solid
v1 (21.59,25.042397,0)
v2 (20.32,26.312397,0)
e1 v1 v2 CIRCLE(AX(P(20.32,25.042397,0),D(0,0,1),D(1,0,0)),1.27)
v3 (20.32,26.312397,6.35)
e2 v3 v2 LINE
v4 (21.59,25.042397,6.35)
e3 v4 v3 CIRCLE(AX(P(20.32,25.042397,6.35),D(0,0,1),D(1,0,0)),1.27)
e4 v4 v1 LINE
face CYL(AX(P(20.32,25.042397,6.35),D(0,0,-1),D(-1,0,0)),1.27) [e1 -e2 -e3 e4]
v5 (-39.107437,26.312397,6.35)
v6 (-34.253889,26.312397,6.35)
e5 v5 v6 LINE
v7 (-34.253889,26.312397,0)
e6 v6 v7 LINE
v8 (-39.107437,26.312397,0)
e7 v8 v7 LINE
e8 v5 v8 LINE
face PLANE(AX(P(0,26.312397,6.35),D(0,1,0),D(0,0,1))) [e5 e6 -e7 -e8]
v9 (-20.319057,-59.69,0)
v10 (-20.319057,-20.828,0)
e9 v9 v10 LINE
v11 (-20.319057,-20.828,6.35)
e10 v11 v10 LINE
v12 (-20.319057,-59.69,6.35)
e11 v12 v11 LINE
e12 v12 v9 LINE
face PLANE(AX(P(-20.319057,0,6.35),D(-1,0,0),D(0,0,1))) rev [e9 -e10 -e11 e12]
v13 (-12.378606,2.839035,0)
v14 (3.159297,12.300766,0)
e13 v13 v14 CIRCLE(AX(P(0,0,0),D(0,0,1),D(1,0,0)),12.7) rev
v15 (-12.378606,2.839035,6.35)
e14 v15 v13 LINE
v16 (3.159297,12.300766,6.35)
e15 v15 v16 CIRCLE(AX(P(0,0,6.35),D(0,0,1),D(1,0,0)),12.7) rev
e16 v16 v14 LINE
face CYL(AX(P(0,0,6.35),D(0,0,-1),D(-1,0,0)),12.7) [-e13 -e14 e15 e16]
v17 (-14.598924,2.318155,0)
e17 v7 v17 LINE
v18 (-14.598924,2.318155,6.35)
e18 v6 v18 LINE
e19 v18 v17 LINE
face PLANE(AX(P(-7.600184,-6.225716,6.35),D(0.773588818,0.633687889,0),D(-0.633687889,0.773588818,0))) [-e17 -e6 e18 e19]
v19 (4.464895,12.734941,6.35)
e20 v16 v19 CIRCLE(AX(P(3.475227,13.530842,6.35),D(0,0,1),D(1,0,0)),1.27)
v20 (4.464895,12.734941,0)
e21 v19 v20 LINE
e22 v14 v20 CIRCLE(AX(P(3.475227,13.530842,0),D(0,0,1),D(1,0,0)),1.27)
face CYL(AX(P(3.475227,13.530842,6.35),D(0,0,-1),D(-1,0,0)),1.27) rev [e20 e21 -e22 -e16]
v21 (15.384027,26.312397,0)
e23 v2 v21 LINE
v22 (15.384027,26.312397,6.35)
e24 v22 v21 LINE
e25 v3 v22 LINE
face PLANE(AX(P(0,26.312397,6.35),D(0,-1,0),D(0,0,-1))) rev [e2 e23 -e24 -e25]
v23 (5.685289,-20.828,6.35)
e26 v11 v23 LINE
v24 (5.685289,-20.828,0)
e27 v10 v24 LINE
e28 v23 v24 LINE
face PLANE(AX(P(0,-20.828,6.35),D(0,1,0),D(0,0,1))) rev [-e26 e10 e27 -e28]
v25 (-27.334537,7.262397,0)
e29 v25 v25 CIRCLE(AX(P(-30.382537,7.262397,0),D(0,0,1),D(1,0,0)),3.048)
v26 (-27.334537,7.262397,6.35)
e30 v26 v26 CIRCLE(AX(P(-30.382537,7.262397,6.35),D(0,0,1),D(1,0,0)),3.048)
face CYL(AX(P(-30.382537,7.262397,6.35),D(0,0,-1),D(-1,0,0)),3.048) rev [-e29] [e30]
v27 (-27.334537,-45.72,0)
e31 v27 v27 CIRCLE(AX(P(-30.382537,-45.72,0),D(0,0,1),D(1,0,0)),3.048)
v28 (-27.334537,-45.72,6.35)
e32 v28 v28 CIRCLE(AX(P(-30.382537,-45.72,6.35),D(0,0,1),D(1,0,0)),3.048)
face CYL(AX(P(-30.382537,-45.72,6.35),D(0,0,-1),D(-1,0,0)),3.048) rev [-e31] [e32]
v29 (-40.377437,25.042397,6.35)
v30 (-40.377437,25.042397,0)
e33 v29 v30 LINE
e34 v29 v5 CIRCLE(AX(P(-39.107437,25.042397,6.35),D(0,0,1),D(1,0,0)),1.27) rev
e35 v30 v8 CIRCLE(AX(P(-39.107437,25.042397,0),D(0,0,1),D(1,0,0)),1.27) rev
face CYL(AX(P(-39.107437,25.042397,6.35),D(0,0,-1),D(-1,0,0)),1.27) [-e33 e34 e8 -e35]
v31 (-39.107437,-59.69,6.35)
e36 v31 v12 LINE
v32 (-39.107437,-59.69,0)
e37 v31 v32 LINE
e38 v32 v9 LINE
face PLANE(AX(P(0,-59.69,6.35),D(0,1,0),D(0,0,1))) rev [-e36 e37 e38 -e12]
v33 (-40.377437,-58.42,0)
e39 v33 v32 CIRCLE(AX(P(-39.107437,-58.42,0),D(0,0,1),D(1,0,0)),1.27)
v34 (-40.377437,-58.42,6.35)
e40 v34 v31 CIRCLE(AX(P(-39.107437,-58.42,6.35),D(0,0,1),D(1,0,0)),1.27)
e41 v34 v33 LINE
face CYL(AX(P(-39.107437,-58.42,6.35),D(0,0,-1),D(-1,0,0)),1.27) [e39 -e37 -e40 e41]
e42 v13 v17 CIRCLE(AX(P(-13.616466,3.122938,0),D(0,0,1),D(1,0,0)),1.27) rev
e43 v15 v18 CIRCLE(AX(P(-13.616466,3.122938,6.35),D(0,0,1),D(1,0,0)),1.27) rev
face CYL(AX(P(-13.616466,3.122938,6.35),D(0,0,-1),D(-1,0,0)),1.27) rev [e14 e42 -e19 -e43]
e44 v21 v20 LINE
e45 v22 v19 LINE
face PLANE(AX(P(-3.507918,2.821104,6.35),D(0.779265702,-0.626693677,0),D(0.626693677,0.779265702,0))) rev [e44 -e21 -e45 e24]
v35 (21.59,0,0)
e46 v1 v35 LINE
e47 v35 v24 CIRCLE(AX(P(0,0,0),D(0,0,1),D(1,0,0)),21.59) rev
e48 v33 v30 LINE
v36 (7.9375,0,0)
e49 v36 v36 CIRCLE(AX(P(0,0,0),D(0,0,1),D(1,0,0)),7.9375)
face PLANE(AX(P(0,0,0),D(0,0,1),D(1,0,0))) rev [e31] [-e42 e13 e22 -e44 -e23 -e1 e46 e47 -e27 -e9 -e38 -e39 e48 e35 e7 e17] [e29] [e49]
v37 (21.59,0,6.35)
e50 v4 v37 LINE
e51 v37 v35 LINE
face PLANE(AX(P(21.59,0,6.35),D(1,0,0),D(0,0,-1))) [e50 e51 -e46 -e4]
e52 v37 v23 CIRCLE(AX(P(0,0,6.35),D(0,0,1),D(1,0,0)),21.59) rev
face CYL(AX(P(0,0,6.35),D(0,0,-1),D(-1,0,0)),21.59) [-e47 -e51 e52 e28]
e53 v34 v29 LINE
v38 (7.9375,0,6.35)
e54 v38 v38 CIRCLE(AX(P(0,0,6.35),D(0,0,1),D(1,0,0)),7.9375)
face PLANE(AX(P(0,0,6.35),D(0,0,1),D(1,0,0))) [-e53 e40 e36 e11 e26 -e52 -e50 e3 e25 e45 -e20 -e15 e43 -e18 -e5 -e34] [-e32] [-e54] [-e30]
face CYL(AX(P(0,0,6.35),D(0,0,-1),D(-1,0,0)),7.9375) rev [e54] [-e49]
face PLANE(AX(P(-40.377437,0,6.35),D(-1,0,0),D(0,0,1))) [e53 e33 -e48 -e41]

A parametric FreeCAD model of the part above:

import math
import FreeCAD as App
import Part
import Sketcher
from FreeCAD import Vector
Q = App.Units.Quantity

doc = App.newDocument("Part")
params = doc.addObject("Spreadsheet::Sheet", "Params")
for row, (alias, value) in enumerate([
    ("sketch1_radius", "0.5 in"),
    ("sketch1_diameter", "0.24 in"),
    ("sketch1_radius2", "0.05 in"),
    ("sketch1_radius3", "0.85 in"),
    ("sketch1_diameter2", "0.625 in"),
    ("pad1_length", "0.25 in"),
], start=1):
    params.set(f"A{row}", alias)
    params.set(f"B{row}", "=" + value)
    params.setAlias(f"B{row}", alias)

body = doc.addObject("PartDesign::Body", "Body")

# Sketch on XY plane
sketch1 = body.newObject("Sketcher::SketchObject", "Sketch")
sketch1.AttachmentSupport = (doc.getObject("XY_Plane"), [""])
sketch1.MapMode = "FlatFace"
sketch1.addGeometry([
    Part.LineSegment(Vector(21.59, 0, 0), Vector(21.59, 25.042397, 0)),  # 0
    Part.ArcOfCircle(Part.Circle(Vector(20.32, 25.042397, 0), Vector(0, 0, 1), 1.27), math.radians(0), math.radians(90)),  # 1
    Part.LineSegment(Vector(20.32, 26.312397, 0), Vector(15.384027, 26.312397, 0)),  # 2
    Part.LineSegment(Vector(15.384027, 26.312397, 0), Vector(4.464895, 12.734941, 0)),  # 3
    Part.ArcOfCircle(Part.Circle(Vector(3.475227, 13.530842, 0), Vector(0, 0, 1), 1.27), math.radians(-104.404359), math.radians(-38.806607)),  # 4
    Part.ArcOfCircle(Part.Circle(Vector(0, 0, 0), Vector(0, 0, 1), 12.7), math.radians(75.595641), math.radians(167.082605)),  # 5
    Part.ArcOfCircle(Part.Circle(Vector(-13.616466, 3.122938, 0), Vector(0, 0, 1), 1.27), math.radians(-140.677264), math.radians(-12.917395)),  # 6
    Part.LineSegment(Vector(-14.598924, 2.318155, 0), Vector(-34.253889, 26.312397, 0)),  # 7
    Part.LineSegment(Vector(-34.253889, 26.312397, 0), Vector(-39.107437, 26.312397, 0)),  # 8
    Part.ArcOfCircle(Part.Circle(Vector(-39.107437, 25.042397, 0), Vector(0, 0, 1), 1.27), math.radians(90), math.radians(180)),  # 9
    Part.LineSegment(Vector(-40.377437, 25.042397, 0), Vector(-40.377437, -58.42, 0)),  # 10
    Part.ArcOfCircle(Part.Circle(Vector(-39.107437, -58.42, 0), Vector(0, 0, 1), 1.27), math.radians(180), math.radians(270)),  # 11
    Part.LineSegment(Vector(-39.107437, -59.69, 0), Vector(-20.319057, -59.69, 0)),  # 12
    Part.LineSegment(Vector(-20.319057, -59.69, 0), Vector(-20.319057, -20.828, 0)),  # 13
    Part.LineSegment(Vector(-20.319057, -20.828, 0), Vector(5.685289, -20.828, 0)),  # 14
    Part.ArcOfCircle(Part.Circle(Vector(0, 0, 0), Vector(0, 0, 1), 21.59), math.radians(-74.73227), math.radians(0)),  # 15
    Part.Circle(Vector(-30.382537, -45.72, 0), Vector(0, 0, 1), 3.048),  # 16
    Part.Circle(Vector(-30.382537, 7.262397, 0), Vector(0, 0, 1), 3.048),  # 17
    Part.Circle(Vector(0, 0, 0), Vector(0, 0, 1), 7.9375),  # 18
], False)
sketch1.addConstraint([
    Sketcher.Constraint("Tangent", 0, 2, 1, 1),
    Sketcher.Constraint("Tangent", 1, 2, 2, 1),
    Sketcher.Constraint("Coincident", 2, 2, 3, 1),
    Sketcher.Constraint("Tangent", 3, 2, 4, 2),
    Sketcher.Constraint("Tangent", 4, 1, 5, 1),
    Sketcher.Constraint("Tangent", 5, 2, 6, 2),
    Sketcher.Constraint("Tangent", 6, 1, 7, 1),
    Sketcher.Constraint("Coincident", 7, 2, 8, 1),
    Sketcher.Constraint("Tangent", 8, 2, 9, 1),
    Sketcher.Constraint("Tangent", 9, 2, 10, 1),
    Sketcher.Constraint("Tangent", 10, 2, 11, 1),
    Sketcher.Constraint("Tangent", 11, 2, 12, 1),
    Sketcher.Constraint("Coincident", 12, 2, 13, 1),
    Sketcher.Constraint("Coincident", 13, 2, 14, 1),
    Sketcher.Constraint("Coincident", 14, 2, 15, 1),
    Sketcher.Constraint("Tangent", 15, 2, 0, 1),
    Sketcher.Constraint("Vertical", 0),
    Sketcher.Constraint("Horizontal", 2),
    Sketcher.Constraint("Horizontal", 8),
    Sketcher.Constraint("Vertical", 10),
    Sketcher.Constraint("Horizontal", 12),
    Sketcher.Constraint("Vertical", 13),
    Sketcher.Constraint("Horizontal", 14),
    Sketcher.Constraint("Coincident", 5, 3, -1, 1),
    Sketcher.Constraint("Coincident", 15, 3, -1, 1),
    Sketcher.Constraint("Coincident", 18, 3, -1, 1),
    Sketcher.Constraint("Equal", 1, 4),
    Sketcher.Constraint("Equal", 4, 6),
    Sketcher.Constraint("Equal", 6, 9),
    Sketcher.Constraint("Equal", 9, 11),
    Sketcher.Constraint("Equal", 16, 17),
    Sketcher.Constraint("Horizontal", 1, 3, 9, 3),
    Sketcher.Constraint("Vertical", 16, 3, 17, 3),
    Sketcher.Constraint("Radius", 5, Q("0.5 in")),
    Sketcher.Constraint("Diameter", 16, Q("0.24 in")),
    Sketcher.Constraint("Radius", 1, Q("0.05 in")),
    Sketcher.Constraint("Radius", 15, Q("0.85 in")),
    Sketcher.Constraint("Diameter", 18, Q("0.625 in")),
    Sketcher.Constraint("DistanceY", 13, 1, 13, 2, Q("1.53 in")),
    Sketcher.Constraint("DistanceY", 11, 3, -1, 1, Q("2.3 in")),
    Sketcher.Constraint("DistanceY", 16, 3, -1, 1, Q("1.8 in")),
    Sketcher.Constraint("DistanceY", 17, 3, 9, 3, Q("0.7 in")),
    Sketcher.Constraint("DistanceX", 12, 1, 12, 2, Q("0.7397 in")),
    Sketcher.Constraint("DistanceX", 11, 3, 16, 3, Q("0.3435 in")),
    Sketcher.Constraint("DistanceX", 8, 2, 8, 1, 4.853548),
    Sketcher.Constraint("DistanceX", 4, 3, 2, 2, 11.9088),
    Sketcher.Constraint("DistanceY", 3, 2, 4, 3, 0.795901),
    Sketcher.Constraint("Distance", 7, 31.01679),
    Sketcher.Constraint("DistanceX", 2, 2, 2, 1, 4.935973),
    Sketcher.Constraint("DistanceX", 14, 1, 14, 2, 26.004346),
])
sketch1.setExpression("Constraints[33]", "Params.sketch1_radius")
sketch1.setExpression("Constraints[34]", "Params.sketch1_diameter")
sketch1.setExpression("Constraints[35]", "Params.sketch1_radius2")
sketch1.setExpression("Constraints[36]", "Params.sketch1_radius3")
sketch1.setExpression("Constraints[37]", "Params.sketch1_diameter2")
pad1 = body.newObject("PartDesign::Pad", "Pad")
pad1.Profile = sketch1
pad1.setExpression("Length", "Params.pad1_length")

doc.recompute()
